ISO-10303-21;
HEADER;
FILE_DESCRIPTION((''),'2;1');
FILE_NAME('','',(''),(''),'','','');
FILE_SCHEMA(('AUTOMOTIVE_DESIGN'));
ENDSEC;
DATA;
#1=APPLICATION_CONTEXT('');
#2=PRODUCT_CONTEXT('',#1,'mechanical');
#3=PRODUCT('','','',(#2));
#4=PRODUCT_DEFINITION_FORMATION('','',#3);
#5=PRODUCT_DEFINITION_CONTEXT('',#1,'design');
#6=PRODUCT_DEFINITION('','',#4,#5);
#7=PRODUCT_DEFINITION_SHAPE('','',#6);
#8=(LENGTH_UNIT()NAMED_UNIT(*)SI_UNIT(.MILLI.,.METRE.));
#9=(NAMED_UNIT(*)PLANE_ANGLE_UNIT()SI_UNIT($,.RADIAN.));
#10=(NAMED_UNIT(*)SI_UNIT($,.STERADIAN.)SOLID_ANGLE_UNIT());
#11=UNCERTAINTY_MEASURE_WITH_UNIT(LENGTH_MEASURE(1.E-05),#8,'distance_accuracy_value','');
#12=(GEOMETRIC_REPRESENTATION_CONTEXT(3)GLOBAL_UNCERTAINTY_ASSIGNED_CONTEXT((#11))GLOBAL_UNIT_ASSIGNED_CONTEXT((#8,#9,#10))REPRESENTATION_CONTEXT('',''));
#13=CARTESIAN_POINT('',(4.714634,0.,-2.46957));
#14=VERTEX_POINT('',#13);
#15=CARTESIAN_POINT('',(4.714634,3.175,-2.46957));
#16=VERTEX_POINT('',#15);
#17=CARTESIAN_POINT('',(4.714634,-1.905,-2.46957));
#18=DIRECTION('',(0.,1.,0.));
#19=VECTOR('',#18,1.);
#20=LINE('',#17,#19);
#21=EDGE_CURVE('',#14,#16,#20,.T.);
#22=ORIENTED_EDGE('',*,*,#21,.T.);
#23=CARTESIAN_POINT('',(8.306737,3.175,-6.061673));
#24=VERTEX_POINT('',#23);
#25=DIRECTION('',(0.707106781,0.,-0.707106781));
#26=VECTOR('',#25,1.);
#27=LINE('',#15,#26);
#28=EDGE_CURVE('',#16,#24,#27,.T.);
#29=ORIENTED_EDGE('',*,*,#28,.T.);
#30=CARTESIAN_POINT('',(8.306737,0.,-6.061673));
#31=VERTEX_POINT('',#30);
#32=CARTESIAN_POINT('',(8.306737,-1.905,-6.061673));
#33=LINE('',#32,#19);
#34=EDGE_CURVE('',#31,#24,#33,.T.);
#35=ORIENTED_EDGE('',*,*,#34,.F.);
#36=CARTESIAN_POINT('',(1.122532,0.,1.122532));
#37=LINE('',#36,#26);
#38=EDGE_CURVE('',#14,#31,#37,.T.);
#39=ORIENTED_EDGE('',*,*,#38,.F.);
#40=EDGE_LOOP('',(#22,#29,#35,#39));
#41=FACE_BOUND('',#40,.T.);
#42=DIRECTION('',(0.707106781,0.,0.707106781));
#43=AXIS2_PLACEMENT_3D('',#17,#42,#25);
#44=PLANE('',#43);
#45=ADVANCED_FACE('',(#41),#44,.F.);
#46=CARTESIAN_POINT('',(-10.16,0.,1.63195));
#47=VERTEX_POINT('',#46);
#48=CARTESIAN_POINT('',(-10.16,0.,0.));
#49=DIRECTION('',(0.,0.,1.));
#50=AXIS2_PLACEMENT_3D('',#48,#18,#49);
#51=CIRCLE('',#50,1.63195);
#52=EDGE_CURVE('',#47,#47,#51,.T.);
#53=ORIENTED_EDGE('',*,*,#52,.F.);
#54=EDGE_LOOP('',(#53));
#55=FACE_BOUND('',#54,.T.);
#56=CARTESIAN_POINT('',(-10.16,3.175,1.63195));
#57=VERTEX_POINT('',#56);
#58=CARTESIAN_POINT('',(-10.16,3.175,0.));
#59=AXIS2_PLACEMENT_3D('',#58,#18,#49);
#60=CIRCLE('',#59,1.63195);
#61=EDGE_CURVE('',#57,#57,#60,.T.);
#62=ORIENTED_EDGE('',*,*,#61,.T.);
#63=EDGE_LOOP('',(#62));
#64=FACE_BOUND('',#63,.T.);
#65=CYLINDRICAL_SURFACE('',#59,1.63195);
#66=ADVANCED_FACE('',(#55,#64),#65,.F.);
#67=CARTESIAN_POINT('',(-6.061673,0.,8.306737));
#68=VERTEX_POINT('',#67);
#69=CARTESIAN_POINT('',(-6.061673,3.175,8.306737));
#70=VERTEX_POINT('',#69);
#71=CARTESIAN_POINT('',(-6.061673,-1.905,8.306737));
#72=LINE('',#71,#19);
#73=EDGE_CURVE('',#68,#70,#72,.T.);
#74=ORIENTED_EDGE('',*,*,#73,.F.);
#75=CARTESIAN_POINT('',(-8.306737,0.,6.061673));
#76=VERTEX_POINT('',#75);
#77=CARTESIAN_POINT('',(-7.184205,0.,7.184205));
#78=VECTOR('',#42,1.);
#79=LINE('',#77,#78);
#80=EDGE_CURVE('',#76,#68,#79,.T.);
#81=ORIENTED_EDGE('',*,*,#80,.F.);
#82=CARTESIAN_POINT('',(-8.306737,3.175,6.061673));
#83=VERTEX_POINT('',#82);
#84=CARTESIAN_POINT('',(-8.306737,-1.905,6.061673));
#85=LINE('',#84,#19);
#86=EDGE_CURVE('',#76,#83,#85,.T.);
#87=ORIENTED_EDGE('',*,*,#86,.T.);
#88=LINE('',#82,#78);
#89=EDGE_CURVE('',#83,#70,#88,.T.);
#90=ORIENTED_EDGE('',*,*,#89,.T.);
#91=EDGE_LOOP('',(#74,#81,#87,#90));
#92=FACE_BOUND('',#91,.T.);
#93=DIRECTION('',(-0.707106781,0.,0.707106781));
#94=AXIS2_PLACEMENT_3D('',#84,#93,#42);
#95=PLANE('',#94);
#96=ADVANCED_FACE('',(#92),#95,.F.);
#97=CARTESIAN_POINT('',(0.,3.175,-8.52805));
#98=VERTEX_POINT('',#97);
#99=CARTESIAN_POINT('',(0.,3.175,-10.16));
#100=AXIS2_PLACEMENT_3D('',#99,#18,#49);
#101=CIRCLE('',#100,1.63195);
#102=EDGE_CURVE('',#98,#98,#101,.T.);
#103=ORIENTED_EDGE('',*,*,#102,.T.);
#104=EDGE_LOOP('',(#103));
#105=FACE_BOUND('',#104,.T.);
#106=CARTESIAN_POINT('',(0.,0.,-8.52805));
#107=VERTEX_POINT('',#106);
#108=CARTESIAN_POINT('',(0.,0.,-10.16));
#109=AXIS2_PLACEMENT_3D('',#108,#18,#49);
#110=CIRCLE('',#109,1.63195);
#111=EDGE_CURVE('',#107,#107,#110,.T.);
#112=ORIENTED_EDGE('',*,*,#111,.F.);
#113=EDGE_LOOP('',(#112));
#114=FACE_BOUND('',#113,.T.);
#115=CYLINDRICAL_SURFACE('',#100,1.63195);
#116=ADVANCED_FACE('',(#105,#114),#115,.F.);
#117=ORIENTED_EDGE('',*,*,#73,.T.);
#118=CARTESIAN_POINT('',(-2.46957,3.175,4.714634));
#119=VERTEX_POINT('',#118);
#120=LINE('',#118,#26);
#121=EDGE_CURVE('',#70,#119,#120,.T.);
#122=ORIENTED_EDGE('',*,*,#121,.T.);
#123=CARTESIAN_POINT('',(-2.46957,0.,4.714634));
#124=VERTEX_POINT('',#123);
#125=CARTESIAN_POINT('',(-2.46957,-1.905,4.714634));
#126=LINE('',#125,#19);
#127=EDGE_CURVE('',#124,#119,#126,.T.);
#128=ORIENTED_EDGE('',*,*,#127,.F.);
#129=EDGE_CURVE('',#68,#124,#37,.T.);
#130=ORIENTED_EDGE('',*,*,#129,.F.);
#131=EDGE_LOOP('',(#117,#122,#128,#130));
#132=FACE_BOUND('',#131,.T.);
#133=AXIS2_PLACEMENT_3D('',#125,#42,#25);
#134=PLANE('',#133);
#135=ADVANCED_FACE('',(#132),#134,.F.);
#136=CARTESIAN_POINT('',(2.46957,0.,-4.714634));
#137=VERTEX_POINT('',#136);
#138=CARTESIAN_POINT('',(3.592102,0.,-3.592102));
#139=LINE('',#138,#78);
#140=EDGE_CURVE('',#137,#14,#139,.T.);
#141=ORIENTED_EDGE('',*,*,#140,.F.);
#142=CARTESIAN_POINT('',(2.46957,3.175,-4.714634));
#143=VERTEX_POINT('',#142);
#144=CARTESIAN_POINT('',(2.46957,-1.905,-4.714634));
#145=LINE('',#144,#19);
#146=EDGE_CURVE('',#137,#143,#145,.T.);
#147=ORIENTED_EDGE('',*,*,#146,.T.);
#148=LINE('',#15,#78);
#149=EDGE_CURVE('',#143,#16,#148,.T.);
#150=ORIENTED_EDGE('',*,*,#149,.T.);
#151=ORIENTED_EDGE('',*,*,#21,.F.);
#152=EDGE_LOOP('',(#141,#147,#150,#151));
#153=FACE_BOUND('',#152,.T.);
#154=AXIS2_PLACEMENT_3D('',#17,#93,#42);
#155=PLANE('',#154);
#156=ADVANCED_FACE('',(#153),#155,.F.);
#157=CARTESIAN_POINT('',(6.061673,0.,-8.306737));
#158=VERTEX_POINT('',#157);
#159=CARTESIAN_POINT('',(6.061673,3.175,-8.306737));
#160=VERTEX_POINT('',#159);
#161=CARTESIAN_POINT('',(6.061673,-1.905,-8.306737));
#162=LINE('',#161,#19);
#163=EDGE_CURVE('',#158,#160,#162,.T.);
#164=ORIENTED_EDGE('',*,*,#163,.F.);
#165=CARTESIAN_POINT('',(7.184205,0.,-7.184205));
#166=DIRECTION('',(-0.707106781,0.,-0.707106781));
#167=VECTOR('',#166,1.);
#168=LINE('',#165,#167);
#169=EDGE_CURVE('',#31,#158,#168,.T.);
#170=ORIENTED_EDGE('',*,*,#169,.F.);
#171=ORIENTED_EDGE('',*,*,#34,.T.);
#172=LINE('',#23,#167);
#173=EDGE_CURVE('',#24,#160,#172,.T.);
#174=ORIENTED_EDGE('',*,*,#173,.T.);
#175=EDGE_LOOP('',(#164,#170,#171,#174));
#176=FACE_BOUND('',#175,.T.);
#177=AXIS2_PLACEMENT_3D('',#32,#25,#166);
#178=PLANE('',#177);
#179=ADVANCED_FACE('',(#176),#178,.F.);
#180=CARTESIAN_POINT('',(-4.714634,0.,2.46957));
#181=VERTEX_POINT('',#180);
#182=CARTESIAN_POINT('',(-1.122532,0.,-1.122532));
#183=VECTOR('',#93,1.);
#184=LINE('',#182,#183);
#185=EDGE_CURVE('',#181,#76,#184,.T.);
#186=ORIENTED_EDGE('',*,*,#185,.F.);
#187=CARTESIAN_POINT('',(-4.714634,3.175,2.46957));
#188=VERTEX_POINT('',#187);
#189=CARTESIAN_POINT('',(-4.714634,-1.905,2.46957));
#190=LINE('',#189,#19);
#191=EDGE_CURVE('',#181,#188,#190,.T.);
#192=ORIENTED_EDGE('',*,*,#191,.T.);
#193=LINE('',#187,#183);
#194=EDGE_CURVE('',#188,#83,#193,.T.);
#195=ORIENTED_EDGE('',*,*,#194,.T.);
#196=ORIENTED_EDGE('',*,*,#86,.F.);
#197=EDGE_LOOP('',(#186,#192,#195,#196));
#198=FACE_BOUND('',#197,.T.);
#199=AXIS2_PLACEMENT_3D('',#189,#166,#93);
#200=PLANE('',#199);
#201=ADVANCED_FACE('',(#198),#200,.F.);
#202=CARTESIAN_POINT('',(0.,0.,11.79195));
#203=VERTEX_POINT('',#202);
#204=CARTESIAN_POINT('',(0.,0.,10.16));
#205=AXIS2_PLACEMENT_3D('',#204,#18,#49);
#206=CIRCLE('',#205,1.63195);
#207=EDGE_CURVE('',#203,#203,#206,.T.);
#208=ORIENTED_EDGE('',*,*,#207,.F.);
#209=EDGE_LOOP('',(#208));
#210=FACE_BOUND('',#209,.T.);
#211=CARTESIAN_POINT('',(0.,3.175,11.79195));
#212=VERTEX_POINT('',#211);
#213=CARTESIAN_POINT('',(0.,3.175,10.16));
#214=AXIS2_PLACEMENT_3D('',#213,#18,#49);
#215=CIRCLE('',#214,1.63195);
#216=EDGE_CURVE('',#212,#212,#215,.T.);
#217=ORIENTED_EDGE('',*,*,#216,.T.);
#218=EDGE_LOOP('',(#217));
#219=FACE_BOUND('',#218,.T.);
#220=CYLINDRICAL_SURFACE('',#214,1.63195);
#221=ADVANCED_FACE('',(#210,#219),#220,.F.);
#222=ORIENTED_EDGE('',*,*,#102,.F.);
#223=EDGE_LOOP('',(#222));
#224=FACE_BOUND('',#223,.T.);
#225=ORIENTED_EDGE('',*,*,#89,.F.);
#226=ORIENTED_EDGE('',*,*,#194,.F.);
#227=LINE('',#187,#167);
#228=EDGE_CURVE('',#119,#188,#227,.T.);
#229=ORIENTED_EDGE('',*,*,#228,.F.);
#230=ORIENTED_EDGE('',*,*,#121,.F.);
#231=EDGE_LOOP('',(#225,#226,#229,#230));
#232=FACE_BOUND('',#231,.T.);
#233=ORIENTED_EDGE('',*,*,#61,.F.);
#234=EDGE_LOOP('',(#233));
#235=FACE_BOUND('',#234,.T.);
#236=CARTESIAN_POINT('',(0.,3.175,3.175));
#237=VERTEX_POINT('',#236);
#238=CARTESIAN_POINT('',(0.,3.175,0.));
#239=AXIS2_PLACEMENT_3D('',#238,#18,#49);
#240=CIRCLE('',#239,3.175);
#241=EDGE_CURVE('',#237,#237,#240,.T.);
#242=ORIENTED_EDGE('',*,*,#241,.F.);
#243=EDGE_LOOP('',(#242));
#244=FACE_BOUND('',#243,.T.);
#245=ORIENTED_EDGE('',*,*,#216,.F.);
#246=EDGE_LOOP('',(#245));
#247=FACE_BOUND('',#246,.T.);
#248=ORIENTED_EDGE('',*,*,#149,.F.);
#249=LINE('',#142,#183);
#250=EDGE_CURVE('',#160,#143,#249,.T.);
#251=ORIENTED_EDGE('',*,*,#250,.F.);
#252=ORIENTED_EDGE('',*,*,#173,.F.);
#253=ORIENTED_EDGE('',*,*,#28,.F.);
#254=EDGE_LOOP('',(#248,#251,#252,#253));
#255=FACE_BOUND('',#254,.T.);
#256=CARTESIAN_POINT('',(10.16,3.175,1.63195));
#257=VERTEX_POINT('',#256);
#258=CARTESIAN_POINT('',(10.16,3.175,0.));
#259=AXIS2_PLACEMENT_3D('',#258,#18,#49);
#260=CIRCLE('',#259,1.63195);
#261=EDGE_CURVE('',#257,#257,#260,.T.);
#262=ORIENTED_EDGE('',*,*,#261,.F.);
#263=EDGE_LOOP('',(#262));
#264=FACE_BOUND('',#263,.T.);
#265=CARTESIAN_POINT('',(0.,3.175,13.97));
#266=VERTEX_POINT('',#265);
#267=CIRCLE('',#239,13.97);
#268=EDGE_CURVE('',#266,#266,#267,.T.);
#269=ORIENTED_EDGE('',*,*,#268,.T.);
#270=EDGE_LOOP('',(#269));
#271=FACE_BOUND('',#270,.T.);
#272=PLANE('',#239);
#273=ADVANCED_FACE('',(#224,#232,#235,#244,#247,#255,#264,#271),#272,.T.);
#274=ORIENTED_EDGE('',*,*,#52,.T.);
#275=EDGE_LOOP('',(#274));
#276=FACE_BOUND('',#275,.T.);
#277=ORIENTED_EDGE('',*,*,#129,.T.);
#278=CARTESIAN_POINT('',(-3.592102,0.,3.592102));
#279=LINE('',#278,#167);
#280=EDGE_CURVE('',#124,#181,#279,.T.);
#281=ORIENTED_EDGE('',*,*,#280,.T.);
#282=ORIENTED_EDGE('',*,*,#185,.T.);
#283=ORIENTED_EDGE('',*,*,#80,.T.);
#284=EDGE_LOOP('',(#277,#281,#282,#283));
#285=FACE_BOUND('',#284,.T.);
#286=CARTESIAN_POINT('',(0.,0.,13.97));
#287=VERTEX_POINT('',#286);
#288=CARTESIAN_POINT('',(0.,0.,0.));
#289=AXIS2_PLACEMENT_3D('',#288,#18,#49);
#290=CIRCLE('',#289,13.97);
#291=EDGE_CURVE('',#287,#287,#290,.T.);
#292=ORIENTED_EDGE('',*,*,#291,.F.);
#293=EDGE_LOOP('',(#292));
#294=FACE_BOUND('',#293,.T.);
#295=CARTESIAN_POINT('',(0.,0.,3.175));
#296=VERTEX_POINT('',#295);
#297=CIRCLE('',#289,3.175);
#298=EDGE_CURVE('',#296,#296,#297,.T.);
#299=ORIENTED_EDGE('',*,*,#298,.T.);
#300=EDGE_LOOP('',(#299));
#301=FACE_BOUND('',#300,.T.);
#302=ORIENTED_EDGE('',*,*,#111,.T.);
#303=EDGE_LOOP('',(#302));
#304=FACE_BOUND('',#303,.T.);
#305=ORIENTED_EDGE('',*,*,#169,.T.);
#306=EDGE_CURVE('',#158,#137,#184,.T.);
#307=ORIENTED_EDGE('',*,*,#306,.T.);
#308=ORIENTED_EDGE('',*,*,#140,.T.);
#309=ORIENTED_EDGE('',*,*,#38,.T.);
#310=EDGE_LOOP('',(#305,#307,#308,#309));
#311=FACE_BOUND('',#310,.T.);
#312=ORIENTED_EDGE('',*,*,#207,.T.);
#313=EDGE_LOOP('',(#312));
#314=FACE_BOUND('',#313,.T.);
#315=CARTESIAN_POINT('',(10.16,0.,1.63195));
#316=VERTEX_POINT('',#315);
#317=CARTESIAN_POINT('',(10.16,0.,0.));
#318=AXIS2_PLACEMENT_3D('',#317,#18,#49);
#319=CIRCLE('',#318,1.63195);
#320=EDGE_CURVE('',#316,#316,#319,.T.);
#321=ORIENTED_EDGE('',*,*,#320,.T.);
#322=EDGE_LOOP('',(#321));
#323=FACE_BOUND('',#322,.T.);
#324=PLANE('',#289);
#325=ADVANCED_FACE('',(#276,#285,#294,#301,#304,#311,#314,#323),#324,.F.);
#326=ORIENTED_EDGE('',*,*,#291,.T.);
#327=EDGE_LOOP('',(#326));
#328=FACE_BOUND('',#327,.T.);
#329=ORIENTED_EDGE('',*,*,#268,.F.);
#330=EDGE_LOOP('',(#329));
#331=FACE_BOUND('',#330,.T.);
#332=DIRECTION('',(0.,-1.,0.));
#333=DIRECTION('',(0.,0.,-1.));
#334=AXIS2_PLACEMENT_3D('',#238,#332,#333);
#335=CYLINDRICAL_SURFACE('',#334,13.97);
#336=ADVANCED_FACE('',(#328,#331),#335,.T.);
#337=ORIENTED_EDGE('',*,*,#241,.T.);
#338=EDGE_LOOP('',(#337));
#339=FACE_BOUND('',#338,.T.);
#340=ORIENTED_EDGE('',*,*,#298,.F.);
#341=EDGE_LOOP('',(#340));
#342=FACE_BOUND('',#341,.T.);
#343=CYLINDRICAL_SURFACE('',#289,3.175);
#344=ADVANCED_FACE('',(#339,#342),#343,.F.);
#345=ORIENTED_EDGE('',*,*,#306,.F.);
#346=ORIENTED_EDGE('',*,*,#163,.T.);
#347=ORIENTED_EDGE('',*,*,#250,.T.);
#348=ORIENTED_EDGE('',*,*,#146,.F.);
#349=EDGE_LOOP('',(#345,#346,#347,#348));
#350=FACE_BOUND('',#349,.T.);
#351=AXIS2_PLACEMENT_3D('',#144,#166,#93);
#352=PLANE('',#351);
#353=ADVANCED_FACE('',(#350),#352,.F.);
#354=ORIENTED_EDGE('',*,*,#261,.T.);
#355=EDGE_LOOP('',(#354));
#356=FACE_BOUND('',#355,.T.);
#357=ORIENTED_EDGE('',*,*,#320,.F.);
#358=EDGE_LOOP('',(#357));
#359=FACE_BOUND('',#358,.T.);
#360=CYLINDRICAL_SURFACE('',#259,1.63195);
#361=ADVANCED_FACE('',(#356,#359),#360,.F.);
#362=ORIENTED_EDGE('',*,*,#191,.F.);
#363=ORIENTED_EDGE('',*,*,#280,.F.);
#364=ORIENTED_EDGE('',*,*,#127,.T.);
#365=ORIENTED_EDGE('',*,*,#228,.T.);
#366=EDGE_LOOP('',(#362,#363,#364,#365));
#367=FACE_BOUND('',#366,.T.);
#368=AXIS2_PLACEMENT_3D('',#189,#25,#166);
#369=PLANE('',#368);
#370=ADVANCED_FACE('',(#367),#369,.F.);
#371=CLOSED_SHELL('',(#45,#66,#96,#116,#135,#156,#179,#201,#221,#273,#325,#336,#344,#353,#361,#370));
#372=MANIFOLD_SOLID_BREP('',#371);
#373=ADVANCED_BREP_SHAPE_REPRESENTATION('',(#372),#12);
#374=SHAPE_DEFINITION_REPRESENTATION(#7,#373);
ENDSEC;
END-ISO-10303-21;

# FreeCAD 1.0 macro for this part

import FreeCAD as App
import Part
import Sketcher
Q = App.Units.Quantity


def add_polygon(sketch, points):
    """Adds a closed chain of lines whose ends are joined by coincident constraints."""
    first, n = sketch.GeometryCount, len(points)
    for a, b in zip(points, points[1:] + points[:1]):
        sketch.addGeometry(Part.LineSegment(App.Vector(*a, 0), App.Vector(*b, 0)), False)
    for i in range(n):
        sketch.addConstraint(Sketcher.Constraint("Coincident", first + i, 2, first + (i + 1) % n, 1))

doc = App.newDocument("Part")
body = doc.addObject("PartDesign::Body", "Body")

# Sketch on XZ plane
sketch1 = body.newObject("Sketcher::SketchObject", "Sketch")
sketch1.AttachmentSupport = (doc.getObject("XZ_Plane"), [""])
sketch1.MapMode = "FlatFace"
sketch1.addGeometry(Part.Circle(App.Vector(0, 0, 0), App.Vector(0, 0, 1), 14), False)
sketch1.addConstraint(Sketcher.Constraint("Coincident", 0, 3, -1, 1))
sketch1.addConstraint(Sketcher.Constraint("Diameter", 0, Q("1.1 in")))
pad1 = body.newObject("PartDesign::Pad", "Pad")
pad1.Profile = sketch1
pad1.Length = Q("0.125 in")
pad1.Reversed = True

# Sketch on XZ plane
sketch2 = body.newObject("Sketcher::SketchObject", "Sketch001")
sketch2.AttachmentSupport = (doc.getObject("XZ_Plane"), [""])
sketch2.MapMode = "FlatFace"
sketch2.AttachmentOffset = App.Placement(App.Vector(0, 0, -0.125 * 25.4), App.Rotation())
sketch2.addGeometry(Part.Circle(App.Vector(0, 0, 0), App.Vector(0, 0, 1), 3.2), False)
sketch2.addConstraint(Sketcher.Constraint("Coincident", 0, 3, -1, 1))
sketch2.addConstraint(Sketcher.Constraint("Diameter", 0, Q("0.25 in")))
pocket1 = body.newObject("PartDesign::Pocket", "Pocket")
pocket1.Profile = sketch2
pocket1.Length = Q("0.125 in")
pocket1.Reversed = True

# Sketch on YZ plane
sketch3 = body.newObject("Sketcher::SketchObject", "Sketch002")
sketch3.AttachmentSupport = (doc.getObject("YZ_Plane"), [""])
sketch3.MapMode = "FlatFace"
add_polygon(sketch3, [(-8, -10.2), (3.2, -10.2), (3.2, -8.5), (-7, -8.5)])  # lines 0-3
sketch3.addGeometry(Part.LineSegment(App.Vector(3.2, -10.2, 0), App.Vector(-8, -10.2, 0)), True)  # axis
sketch3.addConstraint(Sketcher.Constraint("Horizontal", 0))
sketch3.addConstraint(Sketcher.Constraint("Vertical", 1))
sketch3.addConstraint(Sketcher.Constraint("Horizontal", 2))
sketch3.addConstraint(Sketcher.Constraint("Horizontal", 4))
sketch3.addConstraint(Sketcher.Constraint("Coincident", 4, 1, 0, 2))
sketch3.addConstraint(Sketcher.Constraint("Equal", 0, 4))
sketch3.addConstraint(Sketcher.Constraint("DistanceX", 2, 2, 2, 1, Q("0.4 in")))
sketch3.addConstraint(Sketcher.Constraint("Angle", 3, Q("-121 deg")))
sketch3.addConstraint(Sketcher.Constraint("DistanceY", 0, 2, -1, 1, Q("0.4 in")))
sketch3.addConstraint(Sketcher.Constraint("DistanceX", -1, 1, 0, 2, Q("0.125 in")))
sketch3.addConstraint(Sketcher.Constraint("DistanceY", 1, 1, 1, 2, 1.63195))
groove = body.newObject("PartDesign::Groove", "Groove")
groove.Profile = sketch3
groove.ReferenceAxis = (sketch3, ["Axis0"])
groove.Angle = 360
doc.recompute()

polarpattern = body.newObject("PartDesign::PolarPattern", "PolarPattern")
polarpattern.Originals = [groove]
polarpattern.Axis = (doc.getObject("Y_Axis"), [""])
polarpattern.Angle = 360
polarpattern.Occurrences = 4
body.Tip = polarpattern

# Sketch on XZ plane
sketch4 = body.newObject("Sketcher::SketchObject", "Sketch003")
sketch4.AttachmentSupport = (doc.getObject("XZ_Plane"), [""])
sketch4.MapMode = "FlatFace"
sketch4.AttachmentOffset = App.Placement(App.Vector(0, 0, -0.125 * 25.4), App.Rotation())
add_polygon(sketch4, [(4.7, -2.5), (8.3, -6.1), (6.1, -8.3), (2.5, -4.7)])  # lines 0-3
sketch4.addConstraint(Sketcher.Constraint("Perpendicular", 0, 1))
sketch4.addConstraint(Sketcher.Constraint("Perpendicular", 1, 2))
sketch4.addConstraint(Sketcher.Constraint("Perpendicular", 2, 3))
sketch4.addConstraint(Sketcher.Constraint("Angle", 0, Q("-45 deg")))
sketch4.addConstraint(Sketcher.Constraint("Distance", 0, Q("0.2 in")))
sketch4.addConstraint(Sketcher.Constraint("Distance", 1, Q("0.125 in")))
sketch4.addConstraint(Sketcher.Constraint("DistanceX", -1, 1, 2, 2, 2.46957))
sketch4.addConstraint(Sketcher.Constraint("DistanceY", 3, 2, -1, 1, 2.46957))
pocket2 = body.newObject("PartDesign::Pocket", "Pocket001")
pocket2.Profile = sketch4
pocket2.Length = Q("0.2 in")
pocket2.Reversed = True
doc.recompute()

polarpattern2 = body.newObject("PartDesign::PolarPattern", "PolarPattern001")
polarpattern2.Originals = [pocket2]
polarpattern2.Axis = (doc.getObject("Y_Axis"), [""])
polarpattern2.Angle = 360
polarpattern2.Occurrences = 2
body.Tip = polarpattern2

doc.recompute()
